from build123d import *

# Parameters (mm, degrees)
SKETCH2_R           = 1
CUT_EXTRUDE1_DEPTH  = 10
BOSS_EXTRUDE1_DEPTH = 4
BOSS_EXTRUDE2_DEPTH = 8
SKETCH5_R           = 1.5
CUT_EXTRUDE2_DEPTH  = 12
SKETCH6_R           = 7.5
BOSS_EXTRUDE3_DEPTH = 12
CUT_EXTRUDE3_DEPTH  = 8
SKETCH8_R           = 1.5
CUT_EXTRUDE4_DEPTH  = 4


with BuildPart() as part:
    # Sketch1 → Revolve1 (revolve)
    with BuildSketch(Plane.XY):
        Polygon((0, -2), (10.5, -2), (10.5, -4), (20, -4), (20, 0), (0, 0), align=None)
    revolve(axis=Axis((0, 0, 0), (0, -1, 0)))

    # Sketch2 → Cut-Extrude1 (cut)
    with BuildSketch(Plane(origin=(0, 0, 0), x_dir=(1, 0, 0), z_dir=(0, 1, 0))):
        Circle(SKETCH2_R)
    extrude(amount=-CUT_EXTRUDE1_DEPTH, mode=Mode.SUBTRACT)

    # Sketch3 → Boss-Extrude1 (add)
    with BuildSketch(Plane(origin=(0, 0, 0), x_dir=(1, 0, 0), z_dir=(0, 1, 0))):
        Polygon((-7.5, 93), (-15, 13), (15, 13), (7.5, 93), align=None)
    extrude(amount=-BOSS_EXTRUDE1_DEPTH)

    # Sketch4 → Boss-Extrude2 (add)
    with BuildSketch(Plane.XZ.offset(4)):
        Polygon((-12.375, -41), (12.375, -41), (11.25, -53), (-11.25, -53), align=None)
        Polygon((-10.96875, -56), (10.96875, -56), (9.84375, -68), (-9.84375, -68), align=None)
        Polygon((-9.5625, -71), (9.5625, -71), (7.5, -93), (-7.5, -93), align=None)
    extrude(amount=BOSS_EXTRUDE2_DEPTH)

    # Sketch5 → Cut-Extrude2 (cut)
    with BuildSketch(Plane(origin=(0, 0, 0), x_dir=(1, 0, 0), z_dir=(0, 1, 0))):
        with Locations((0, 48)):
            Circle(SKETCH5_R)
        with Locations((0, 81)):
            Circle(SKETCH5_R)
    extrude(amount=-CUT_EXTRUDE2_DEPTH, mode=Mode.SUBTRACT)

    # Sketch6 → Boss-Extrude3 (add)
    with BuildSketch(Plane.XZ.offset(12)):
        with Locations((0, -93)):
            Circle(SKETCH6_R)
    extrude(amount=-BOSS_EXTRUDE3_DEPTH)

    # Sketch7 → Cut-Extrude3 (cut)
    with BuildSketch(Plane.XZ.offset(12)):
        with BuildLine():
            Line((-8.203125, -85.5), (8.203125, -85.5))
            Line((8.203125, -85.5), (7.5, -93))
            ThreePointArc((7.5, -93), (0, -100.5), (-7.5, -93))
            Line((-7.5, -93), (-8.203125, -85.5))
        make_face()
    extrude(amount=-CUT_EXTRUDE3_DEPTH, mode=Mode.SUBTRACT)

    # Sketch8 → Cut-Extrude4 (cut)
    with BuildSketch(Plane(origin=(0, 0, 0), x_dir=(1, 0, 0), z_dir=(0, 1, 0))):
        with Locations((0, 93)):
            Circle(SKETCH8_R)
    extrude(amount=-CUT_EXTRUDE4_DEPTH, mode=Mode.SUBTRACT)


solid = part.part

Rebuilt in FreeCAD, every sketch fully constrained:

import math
import FreeCAD as App
import Part
import Sketcher
from FreeCAD import Vector


def add_polygon(sketch, points):
    """Adds a closed chain of lines whose ends are joined by coincident constraints."""
    first, n = sketch.GeometryCount, len(points)
    for a, b in zip(points, points[1:] + points[:1]):
        sketch.addGeometry(Part.LineSegment(App.Vector(*a, 0), App.Vector(*b, 0)), False)
    for i in range(n):
        sketch.addConstraint(Sketcher.Constraint("Coincident", first + i, 2, first + (i + 1) % n, 1))

doc = App.newDocument("Part")
body = doc.addObject("PartDesign::Body", "Body")

sketch1 = body.newObject("Sketcher::SketchObject", "Sketch")
sketch1.AttachmentSupport = (doc.getObject("XY_Plane"), [""])
sketch1.MapMode = "FlatFace"
add_polygon(sketch1, [(0, -2), (10.5, -2), (10.5, -4), (20, -4), (20, 0), (0, 0)])
sketch1.addConstraint([
    Sketcher.Constraint("Horizontal", 0),
    Sketcher.Constraint("Vertical", 1),
    Sketcher.Constraint("Horizontal", 2),
    Sketcher.Constraint("Vertical", 3),
    Sketcher.Constraint("Horizontal", 4),
    Sketcher.Constraint("Vertical", 5),
    Sketcher.Constraint("Coincident", 4, 2, -1, 1),
    Sketcher.Constraint("Equal", 1, 5),
    Sketcher.Constraint("DistanceX", 4, 2, 4, 1, 20.0),
    Sketcher.Constraint("DistanceY", 1, 2, 1, 1, 2.0),
    Sketcher.Constraint("DistanceX", 0, 1, 0, 2, 10.5),
])
revolution = body.newObject("PartDesign::Revolution", "Revolution")
revolution.Profile = sketch1
revolution.ReferenceAxis = (sketch1, ["V_Axis"])
revolution.Angle = 360

sketch2 = body.newObject("Sketcher::SketchObject", "Sketch001")
sketch2.AttachmentSupport = (doc.getObject("XZ_Plane"), [""])
sketch2.MapMode = "FlatFace"
sketch2.addGeometry(Part.Circle(Vector(0, 0, 0), Vector(0, 0, 1), 1), False)
sketch2.addConstraint([
    Sketcher.Constraint("Coincident", 0, 3, -1, 1),
    Sketcher.Constraint("Diameter", 0, 2.0),
])
pocket1 = body.newObject("PartDesign::Pocket", "Pocket")
pocket1.Profile = sketch2
pocket1.Length = 10
pocket1.Reversed = True

sketch3 = body.newObject("Sketcher::SketchObject", "Sketch002")
sketch3.AttachmentSupport = (doc.getObject("XZ_Plane"), [""])
sketch3.MapMode = "FlatFace"
add_polygon(sketch3, [(-8, -93), (-15, -13), (15, -13), (8, -93)])
sketch3.addConstraint([
    Sketcher.Constraint("Horizontal", 1),
    Sketcher.Constraint("Horizontal", 3),
    Sketcher.Constraint("Equal", 0, 2),
    Sketcher.Constraint("DistanceX", 1, 1, 1, 2, 30.0),
    Sketcher.Constraint("DistanceX", 3, 2, 3, 1, 15.0),
    Sketcher.Constraint("DistanceX", 0, 2, -1, 1, 15.0),
    Sketcher.Constraint("DistanceY", 0, 2, -1, 1, 13.0),
    Sketcher.Constraint("DistanceY", 2, 2, -1, 1, 93.0),
])
pad1 = body.newObject("PartDesign::Pad", "Pad")
pad1.Profile = sketch3
pad1.Length = 4

sketch4 = body.newObject("Sketcher::SketchObject", "Sketch003")
sketch4.AttachmentSupport = (doc.getObject("XZ_Plane"), [""])
sketch4.MapMode = "FlatFace"
sketch4.AttachmentOffset = App.Placement(Vector(0, 0, 4), App.Rotation())
add_polygon(sketch4, [(12, -41), (-12, -41), (-11, -53), (11, -53)])
add_polygon(sketch4, [(11, -56), (-11, -56), (-10, -68), (10, -68)])
add_polygon(sketch4, [(10, -71), (-10, -71), (-8, -93), (8, -93)])
sketch4.addConstraint([
    Sketcher.Constraint("Horizontal", 0),
    Sketcher.Constraint("Horizontal", 2),
    Sketcher.Constraint("Horizontal", 4),
    Sketcher.Constraint("Horizontal", 6),
    Sketcher.Constraint("Horizontal", 8),
    Sketcher.Constraint("Horizontal", 10),
    Sketcher.Constraint("Parallel", 1, 5),
    Sketcher.Constraint("Parallel", 3, 7),
    Sketcher.Constraint("Parallel", 5, 9),
    Sketcher.Constraint("Parallel", 7, 11),
    Sketcher.Constraint("Equal", 1, 3),
    Sketcher.Constraint("Equal", 3, 5),
    Sketcher.Constraint("DistanceX", 10, 1, 10, 2, 15.0),
    Sketcher.Constraint("DistanceX", 2, 1, 2, 2, 22.5),
    Sketcher.Constraint("DistanceY", 0, 2, -1, 1, 41.0),
    Sketcher.Constraint("DistanceY", 1, 2, -1, 1, 53.0),
    Sketcher.Constraint("DistanceY", 4, 2, -1, 1, 56.0),
    Sketcher.Constraint("DistanceY", 8, 2, -1, 1, 71.0),
    Sketcher.Constraint("DistanceY", 9, 2, -1, 1, 93.0),
    Sketcher.Constraint("DistanceX", 0, 2, 0, 1, 24.75),
    Sketcher.Constraint("DistanceX", 9, 2, -1, 1, 7.5),
    Sketcher.Constraint("DistanceX", 1, 2, -1, 1, 11.25),
    Sketcher.Constraint("DistanceX", 4, 2, 4, 1, 21.9375),
    Sketcher.Constraint("DistanceX", 4, 2, -1, 1, 10.96875),
])
pad2 = body.newObject("PartDesign::Pad", "Pad001")
pad2.Profile = sketch4
pad2.Length = 8

sketch5 = body.newObject("Sketcher::SketchObject", "Sketch004")
sketch5.AttachmentSupport = (doc.getObject("XZ_Plane"), [""])
sketch5.MapMode = "FlatFace"
sketch5.addGeometry([
    Part.Circle(Vector(0, -48, 0), Vector(0, 0, 1), 1.5),
    Part.Circle(Vector(0, -81, 0), Vector(0, 0, 1), 1.5),
], False)
sketch5.addConstraint([
    Sketcher.Constraint("Equal", 0, 1),
    Sketcher.Constraint("PointOnObject", 0, 3, -2),
    Sketcher.Constraint("PointOnObject", 1, 3, -2),
    Sketcher.Constraint("Diameter", 0, 3.0),
    Sketcher.Constraint("DistanceY", 0, 3, -1, 1, 48.0),
    Sketcher.Constraint("DistanceY", 1, 3, -1, 1, 81.0),
])
pocket2 = body.newObject("PartDesign::Pocket", "Pocket001")
pocket2.Profile = sketch5
pocket2.Length = 12
pocket2.Reversed = True

sketch6 = body.newObject("Sketcher::SketchObject", "Sketch005")
sketch6.AttachmentSupport = (doc.getObject("XZ_Plane"), [""])
sketch6.MapMode = "FlatFace"
sketch6.AttachmentOffset = App.Placement(Vector(0, 0, 12), App.Rotation())
sketch6.addGeometry(Part.Circle(Vector(0, -93, 0), Vector(0, 0, 1), 8), False)
sketch6.addConstraint([
    Sketcher.Constraint("PointOnObject", 0, 3, -2),
    Sketcher.Constraint("Diameter", 0, 15.0),
    Sketcher.Constraint("DistanceY", 0, 3, -1, 1, 93.0),
])
pad3 = body.newObject("PartDesign::Pad", "Pad002")
pad3.Profile = sketch6
pad3.Length = 12
pad3.Reversed = True

sketch7 = body.newObject("Sketcher::SketchObject", "Sketch006")
sketch7.AttachmentSupport = (doc.getObject("XZ_Plane"), [""])
sketch7.MapMode = "FlatFace"
sketch7.AttachmentOffset = App.Placement(Vector(0, 0, 12), App.Rotation())
sketch7.addGeometry([
    Part.LineSegment(Vector(8, -86, 0), Vector(-8, -86, 0)),
    Part.LineSegment(Vector(-8, -86, 0), Vector(-8, -93, 0)),
    Part.ArcOfCircle(Part.Circle(Vector(0, -93, 0), Vector(0, 0, 1), 8), math.radians(180), math.radians(360)),
    Part.LineSegment(Vector(8, -93, 0), Vector(8, -86, 0)),
], False)
sketch7.addConstraint([
    Sketcher.Constraint("Coincident", 0, 2, 1, 1),
    Sketcher.Constraint("Coincident", 1, 2, 2, 1),
    Sketcher.Constraint("Coincident", 2, 2, 3, 1),
    Sketcher.Constraint("Coincident", 3, 2, 0, 1),
    Sketcher.Constraint("Horizontal", 0),
    Sketcher.Constraint("Symmetric", 1, 2, 2, 2, -2),
    Sketcher.Constraint("Horizontal", 2, 3, 1, 2),
    Sketcher.Constraint("Equal", 1, 3),
    Sketcher.Constraint("Radius", 2, 7.5),
    Sketcher.Constraint("DistanceY", 2, 3, -1, 1, 93.0),
    Sketcher.Constraint("DistanceY", 0, 2, -1, 1, 85.5),
    Sketcher.Constraint("DistanceX", 0, 2, 0, 1, 16.40625),
])
pocket3 = body.newObject("PartDesign::Pocket", "Pocket002")
pocket3.Profile = sketch7
pocket3.Length = 8

sketch8 = body.newObject("Sketcher::SketchObject", "Sketch007")
sketch8.AttachmentSupport = (doc.getObject("XZ_Plane"), [""])
sketch8.MapMode = "FlatFace"
sketch8.addGeometry(Part.Circle(Vector(0, -93, 0), Vector(0, 0, 1), 1.5), False)
sketch8.addConstraint([
    Sketcher.Constraint("PointOnObject", 0, 3, -2),
    Sketcher.Constraint("Diameter", 0, 3.0),
    Sketcher.Constraint("DistanceY", 0, 3, -1, 1, 93.0),
])
pocket4 = body.newObject("PartDesign::Pocket", "Pocket003")
pocket4.Profile = sketch8
pocket4.Length = 4
pocket4.Reversed = True

doc.recompute()
